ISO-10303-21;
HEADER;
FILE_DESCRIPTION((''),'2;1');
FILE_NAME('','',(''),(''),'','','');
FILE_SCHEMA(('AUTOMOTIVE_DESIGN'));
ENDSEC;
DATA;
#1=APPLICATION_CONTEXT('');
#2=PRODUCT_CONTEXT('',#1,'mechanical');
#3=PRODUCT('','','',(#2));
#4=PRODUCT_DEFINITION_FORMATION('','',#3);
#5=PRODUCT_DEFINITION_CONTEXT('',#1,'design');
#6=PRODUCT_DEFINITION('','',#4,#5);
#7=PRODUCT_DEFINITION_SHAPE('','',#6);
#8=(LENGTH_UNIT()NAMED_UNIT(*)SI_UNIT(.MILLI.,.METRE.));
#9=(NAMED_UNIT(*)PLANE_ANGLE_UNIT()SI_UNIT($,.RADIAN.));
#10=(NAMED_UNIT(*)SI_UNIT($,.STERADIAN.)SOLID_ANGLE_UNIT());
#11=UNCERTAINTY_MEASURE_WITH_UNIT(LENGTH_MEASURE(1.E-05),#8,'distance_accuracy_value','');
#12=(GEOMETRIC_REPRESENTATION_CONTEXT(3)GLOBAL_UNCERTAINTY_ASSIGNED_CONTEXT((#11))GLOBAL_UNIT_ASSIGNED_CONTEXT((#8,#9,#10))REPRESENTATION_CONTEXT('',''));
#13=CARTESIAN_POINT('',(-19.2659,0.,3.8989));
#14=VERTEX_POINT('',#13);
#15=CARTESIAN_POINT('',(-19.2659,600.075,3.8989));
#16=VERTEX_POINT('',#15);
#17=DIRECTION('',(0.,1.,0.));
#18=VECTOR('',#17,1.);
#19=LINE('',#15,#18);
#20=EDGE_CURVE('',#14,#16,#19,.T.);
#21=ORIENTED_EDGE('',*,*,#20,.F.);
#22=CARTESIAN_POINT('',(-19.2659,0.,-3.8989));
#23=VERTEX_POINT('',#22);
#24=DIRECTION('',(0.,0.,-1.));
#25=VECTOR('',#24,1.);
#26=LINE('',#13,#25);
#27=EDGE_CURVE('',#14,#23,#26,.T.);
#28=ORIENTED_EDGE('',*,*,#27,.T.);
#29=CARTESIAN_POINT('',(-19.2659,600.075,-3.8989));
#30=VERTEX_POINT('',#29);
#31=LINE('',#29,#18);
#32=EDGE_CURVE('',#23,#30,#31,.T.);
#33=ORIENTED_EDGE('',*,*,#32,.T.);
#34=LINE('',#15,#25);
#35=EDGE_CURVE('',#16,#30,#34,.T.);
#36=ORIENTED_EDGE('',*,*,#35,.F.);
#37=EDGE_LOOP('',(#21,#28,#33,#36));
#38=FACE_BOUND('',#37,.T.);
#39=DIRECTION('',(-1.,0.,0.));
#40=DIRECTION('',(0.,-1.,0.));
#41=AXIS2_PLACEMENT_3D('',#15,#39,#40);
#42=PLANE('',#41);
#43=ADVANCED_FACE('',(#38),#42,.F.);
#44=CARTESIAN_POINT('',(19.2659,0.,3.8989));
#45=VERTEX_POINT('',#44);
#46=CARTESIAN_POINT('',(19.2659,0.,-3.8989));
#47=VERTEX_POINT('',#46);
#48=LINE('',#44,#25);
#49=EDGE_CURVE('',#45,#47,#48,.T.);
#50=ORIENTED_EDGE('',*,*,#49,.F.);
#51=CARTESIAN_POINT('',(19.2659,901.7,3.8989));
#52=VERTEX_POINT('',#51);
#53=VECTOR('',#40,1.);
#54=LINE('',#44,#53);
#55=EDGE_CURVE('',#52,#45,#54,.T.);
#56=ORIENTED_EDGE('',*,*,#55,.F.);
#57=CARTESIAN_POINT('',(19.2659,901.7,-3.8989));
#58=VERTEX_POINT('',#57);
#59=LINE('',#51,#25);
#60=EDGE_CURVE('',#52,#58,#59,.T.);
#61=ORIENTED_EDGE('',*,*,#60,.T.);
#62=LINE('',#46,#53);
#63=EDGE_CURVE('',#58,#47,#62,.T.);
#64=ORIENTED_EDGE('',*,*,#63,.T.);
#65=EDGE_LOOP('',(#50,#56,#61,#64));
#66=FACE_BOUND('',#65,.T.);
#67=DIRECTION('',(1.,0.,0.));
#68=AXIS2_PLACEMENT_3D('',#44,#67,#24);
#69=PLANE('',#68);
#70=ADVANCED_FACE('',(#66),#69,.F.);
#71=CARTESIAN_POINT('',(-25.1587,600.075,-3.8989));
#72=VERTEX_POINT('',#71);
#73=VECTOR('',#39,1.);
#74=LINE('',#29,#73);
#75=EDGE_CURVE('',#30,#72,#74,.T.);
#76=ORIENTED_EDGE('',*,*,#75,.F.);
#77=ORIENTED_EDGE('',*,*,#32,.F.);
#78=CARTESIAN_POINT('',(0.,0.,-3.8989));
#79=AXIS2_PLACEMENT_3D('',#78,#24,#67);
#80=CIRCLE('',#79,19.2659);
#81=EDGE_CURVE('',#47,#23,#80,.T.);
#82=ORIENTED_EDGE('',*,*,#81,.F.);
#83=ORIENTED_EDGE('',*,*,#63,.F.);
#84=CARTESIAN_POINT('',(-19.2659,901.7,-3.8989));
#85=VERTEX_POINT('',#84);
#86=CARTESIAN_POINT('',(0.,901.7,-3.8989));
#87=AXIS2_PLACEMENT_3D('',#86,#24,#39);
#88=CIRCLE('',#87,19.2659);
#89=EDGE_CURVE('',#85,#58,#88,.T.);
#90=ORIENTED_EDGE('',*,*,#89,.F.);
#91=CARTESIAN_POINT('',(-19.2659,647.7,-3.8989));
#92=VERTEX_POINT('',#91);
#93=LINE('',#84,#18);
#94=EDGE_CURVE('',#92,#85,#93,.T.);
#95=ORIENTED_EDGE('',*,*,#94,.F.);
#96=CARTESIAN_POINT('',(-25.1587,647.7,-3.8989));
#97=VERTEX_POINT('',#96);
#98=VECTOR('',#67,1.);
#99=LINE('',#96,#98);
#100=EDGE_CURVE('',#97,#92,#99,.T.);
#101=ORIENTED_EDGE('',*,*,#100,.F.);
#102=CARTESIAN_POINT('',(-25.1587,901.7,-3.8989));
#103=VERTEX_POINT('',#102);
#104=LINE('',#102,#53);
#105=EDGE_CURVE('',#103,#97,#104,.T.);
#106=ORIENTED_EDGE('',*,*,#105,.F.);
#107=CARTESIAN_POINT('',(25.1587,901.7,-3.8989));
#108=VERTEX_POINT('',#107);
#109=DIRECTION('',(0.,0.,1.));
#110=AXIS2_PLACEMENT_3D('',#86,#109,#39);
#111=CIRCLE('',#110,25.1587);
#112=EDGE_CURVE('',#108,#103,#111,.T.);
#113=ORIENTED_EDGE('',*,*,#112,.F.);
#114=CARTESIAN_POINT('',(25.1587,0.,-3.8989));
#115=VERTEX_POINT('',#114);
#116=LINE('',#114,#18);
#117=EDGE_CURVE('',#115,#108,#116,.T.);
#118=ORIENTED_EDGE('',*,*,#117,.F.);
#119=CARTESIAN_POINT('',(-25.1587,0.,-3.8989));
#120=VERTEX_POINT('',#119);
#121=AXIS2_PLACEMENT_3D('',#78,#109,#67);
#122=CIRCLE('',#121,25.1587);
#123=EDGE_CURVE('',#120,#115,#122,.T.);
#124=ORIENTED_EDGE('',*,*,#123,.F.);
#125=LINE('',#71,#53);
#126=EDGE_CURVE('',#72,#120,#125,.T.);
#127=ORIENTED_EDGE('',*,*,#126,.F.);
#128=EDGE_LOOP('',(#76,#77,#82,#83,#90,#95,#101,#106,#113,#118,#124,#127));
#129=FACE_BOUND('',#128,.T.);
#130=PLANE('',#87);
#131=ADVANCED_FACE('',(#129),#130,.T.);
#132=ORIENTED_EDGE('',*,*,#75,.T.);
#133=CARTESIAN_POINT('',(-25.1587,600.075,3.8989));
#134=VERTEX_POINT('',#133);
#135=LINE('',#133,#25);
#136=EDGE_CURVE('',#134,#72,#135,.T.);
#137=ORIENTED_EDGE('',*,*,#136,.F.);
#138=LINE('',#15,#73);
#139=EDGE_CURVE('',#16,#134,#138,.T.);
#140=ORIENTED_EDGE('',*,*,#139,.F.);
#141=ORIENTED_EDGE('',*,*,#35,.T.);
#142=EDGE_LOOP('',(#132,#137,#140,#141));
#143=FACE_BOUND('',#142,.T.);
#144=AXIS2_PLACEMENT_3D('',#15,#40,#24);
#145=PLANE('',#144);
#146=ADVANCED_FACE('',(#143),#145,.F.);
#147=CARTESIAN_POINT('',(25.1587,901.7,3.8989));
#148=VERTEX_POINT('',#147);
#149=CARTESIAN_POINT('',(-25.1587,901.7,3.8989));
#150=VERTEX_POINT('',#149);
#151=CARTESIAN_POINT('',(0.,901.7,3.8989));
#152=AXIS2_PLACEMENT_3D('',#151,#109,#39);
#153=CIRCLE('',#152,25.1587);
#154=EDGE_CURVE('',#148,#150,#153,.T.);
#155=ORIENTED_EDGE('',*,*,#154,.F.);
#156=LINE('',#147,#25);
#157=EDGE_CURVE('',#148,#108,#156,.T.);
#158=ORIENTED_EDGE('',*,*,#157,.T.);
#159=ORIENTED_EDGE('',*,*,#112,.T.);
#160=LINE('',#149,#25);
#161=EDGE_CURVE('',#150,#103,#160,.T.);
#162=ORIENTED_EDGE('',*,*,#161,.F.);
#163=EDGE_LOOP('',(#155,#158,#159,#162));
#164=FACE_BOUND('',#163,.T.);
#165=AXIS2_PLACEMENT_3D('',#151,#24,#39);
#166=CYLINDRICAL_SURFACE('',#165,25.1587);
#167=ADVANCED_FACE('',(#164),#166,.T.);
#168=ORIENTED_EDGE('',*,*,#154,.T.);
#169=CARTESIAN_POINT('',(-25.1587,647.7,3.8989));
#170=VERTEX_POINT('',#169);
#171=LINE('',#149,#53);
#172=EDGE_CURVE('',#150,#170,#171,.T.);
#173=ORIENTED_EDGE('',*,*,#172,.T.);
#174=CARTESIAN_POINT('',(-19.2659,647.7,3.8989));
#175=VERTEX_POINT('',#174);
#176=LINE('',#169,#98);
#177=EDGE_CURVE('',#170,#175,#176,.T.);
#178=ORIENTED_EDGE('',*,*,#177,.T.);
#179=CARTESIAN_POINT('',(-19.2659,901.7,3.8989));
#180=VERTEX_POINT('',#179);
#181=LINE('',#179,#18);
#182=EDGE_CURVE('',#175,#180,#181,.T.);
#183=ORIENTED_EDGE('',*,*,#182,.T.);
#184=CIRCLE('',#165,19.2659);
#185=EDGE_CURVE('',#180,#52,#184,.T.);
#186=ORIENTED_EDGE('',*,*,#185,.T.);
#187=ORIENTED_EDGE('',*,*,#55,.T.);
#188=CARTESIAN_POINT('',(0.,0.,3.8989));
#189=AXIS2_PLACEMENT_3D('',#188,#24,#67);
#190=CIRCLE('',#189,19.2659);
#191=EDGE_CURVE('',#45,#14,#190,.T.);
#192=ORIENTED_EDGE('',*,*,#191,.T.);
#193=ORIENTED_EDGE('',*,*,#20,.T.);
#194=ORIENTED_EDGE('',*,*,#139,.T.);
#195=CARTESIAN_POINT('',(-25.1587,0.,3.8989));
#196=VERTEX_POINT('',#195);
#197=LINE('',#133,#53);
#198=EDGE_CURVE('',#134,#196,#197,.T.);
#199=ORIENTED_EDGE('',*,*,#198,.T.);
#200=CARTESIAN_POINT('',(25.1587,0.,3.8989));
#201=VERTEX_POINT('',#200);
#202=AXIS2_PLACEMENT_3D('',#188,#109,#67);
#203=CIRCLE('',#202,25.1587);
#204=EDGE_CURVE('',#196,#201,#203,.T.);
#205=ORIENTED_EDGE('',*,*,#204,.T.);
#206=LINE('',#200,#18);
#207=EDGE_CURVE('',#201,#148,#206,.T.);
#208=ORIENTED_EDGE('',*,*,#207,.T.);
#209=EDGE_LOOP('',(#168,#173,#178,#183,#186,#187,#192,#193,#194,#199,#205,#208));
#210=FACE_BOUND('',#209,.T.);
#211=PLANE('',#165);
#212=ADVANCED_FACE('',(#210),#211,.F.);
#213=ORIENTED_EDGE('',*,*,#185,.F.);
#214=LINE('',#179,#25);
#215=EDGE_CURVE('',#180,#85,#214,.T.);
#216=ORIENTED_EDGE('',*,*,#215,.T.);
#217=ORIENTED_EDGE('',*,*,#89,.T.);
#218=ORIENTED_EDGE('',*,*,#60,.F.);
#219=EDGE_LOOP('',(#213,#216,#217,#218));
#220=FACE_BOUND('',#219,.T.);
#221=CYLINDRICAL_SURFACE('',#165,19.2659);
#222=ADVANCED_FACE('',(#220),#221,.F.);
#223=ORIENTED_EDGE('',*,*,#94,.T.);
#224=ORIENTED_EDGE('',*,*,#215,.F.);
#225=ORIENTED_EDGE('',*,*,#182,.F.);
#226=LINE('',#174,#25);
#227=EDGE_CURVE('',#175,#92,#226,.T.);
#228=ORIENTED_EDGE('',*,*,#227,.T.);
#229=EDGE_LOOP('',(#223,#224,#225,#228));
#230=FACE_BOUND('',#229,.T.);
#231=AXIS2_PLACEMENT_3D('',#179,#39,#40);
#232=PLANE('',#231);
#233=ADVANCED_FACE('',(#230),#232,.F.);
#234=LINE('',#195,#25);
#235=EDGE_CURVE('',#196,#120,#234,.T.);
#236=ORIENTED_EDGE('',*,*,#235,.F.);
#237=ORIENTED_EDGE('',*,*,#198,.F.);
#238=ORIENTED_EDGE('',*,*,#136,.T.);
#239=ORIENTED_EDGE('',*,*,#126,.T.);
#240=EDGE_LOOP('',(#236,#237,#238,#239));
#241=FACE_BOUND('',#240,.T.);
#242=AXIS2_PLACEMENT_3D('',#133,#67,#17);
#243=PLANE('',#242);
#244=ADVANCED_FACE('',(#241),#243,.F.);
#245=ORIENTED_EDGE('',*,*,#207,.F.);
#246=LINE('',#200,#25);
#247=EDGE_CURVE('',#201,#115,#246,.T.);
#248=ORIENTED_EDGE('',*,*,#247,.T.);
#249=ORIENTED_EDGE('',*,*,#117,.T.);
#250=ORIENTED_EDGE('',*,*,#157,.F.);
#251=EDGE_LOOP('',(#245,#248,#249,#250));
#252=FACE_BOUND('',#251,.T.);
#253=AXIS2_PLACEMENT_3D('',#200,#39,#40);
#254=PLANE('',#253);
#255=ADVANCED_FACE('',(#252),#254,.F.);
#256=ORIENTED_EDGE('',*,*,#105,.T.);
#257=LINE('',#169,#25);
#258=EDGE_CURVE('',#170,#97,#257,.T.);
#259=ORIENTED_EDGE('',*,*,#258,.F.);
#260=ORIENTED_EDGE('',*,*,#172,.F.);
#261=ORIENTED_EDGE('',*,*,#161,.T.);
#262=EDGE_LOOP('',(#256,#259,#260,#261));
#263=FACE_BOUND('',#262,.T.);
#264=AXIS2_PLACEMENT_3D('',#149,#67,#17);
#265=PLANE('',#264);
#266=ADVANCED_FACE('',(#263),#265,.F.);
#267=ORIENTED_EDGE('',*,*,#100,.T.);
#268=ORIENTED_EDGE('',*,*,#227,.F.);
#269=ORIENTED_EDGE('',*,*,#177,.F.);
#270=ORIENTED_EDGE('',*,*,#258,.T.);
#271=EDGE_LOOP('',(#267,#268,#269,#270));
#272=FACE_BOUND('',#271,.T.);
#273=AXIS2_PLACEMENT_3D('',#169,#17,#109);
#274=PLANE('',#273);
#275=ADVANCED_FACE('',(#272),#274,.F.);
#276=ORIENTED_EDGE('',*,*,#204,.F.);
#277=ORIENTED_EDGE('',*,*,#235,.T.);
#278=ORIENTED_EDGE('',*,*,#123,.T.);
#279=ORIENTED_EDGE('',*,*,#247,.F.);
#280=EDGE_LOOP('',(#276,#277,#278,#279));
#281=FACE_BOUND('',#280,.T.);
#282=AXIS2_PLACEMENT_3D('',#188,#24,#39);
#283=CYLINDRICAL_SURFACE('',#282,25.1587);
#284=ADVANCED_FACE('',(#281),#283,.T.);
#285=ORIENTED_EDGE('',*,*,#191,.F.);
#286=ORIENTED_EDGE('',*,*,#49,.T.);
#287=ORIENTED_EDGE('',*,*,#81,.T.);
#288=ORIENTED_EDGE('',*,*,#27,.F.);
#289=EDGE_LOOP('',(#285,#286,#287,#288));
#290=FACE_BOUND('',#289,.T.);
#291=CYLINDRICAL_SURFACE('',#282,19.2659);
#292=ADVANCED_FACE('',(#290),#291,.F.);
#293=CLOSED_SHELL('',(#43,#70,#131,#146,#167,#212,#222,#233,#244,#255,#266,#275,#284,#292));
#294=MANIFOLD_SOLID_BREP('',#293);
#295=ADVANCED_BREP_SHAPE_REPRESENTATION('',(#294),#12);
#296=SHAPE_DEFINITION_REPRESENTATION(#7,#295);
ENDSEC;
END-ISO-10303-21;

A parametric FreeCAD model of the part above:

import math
import FreeCAD as App
import Part
import Sketcher
Q = App.Units.Quantity

doc = App.newDocument("Part")
body = doc.addObject("PartDesign::Body", "Body")

sketch1 = body.newObject("Sketcher::SketchObject", "Sketch")
sketch1.AttachmentSupport = (doc.getObject("XY_Plane"), [""])
sketch1.MapMode = "FlatFace"
sketch1.addGeometry([
    Part.LineSegment(App.Vector(-25, 902, 0), App.Vector(-25, 648, 0)),
    Part.LineSegment(App.Vector(-25, 648, 0), App.Vector(-19, 648, 0)),
    Part.LineSegment(App.Vector(-19, 648, 0), App.Vector(-19, 902, 0)),
    Part.ArcOfCircle(Part.Circle(App.Vector(0, 902, 0), App.Vector(0, 0, 1), 19), math.radians(0), math.radians(180)),
    Part.LineSegment(App.Vector(19, 902, 0), App.Vector(19, 0, 0)),
    Part.ArcOfCircle(Part.Circle(App.Vector(0, 0, 0), App.Vector(0, 0, 1), 19), math.radians(180), math.radians(360)),
    Part.LineSegment(App.Vector(-19, 0, 0), App.Vector(-19, 600, 0)),
    Part.LineSegment(App.Vector(-19, 600, 0), App.Vector(-25, 600, 0)),
    Part.LineSegment(App.Vector(-25, 600, 0), App.Vector(-25, 0, 0)),
    Part.ArcOfCircle(Part.Circle(App.Vector(0, 0, 0), App.Vector(0, 0, 1), 25), math.radians(180), math.radians(360)),
    Part.LineSegment(App.Vector(25, 0, 0), App.Vector(25, 902, 0)),
    Part.ArcOfCircle(Part.Circle(App.Vector(0, 902, 0), App.Vector(0, 0, 1), 25), math.radians(0), math.radians(180)),
], False)
sketch1.addConstraint([
    Sketcher.Constraint("Coincident", 0, 2, 1, 1),
    Sketcher.Constraint("Coincident", 1, 2, 2, 1),
    Sketcher.Constraint("Tangent", 2, 2, 3, 2),
    Sketcher.Constraint("Tangent", 3, 1, 4, 1),
    Sketcher.Constraint("Tangent", 4, 2, 5, 2),
    Sketcher.Constraint("Tangent", 5, 1, 6, 1),
    Sketcher.Constraint("Coincident", 6, 2, 7, 1),
    Sketcher.Constraint("Coincident", 7, 2, 8, 1),
    Sketcher.Constraint("Tangent", 8, 2, 9, 1),
    Sketcher.Constraint("Tangent", 9, 2, 10, 1),
    Sketcher.Constraint("Tangent", 10, 2, 11, 1),
    Sketcher.Constraint("Tangent", 11, 2, 0, 1),
    Sketcher.Constraint("Vertical", 0),
    Sketcher.Constraint("Horizontal", 1),
    Sketcher.Constraint("Vertical", 2),
    Sketcher.Constraint("Vertical", 4),
    Sketcher.Constraint("Vertical", 6),
    Sketcher.Constraint("Horizontal", 7),
    Sketcher.Constraint("Vertical", 8),
    Sketcher.Constraint("Vertical", 10),
    Sketcher.Constraint("Coincident", 5, 3, -1, 1),
    Sketcher.Constraint("Coincident", 9, 3, -1, 1),
    Sketcher.Constraint("Coincident", 11, 3, 3, 3),
    Sketcher.Constraint("Equal", 3, 5),
    Sketcher.Constraint("DistanceY", 0, 2, 0, 1, Q("10 in")),
    Sketcher.Constraint("DistanceY", 4, 2, 4, 1, Q("35.5 in")),
    Sketcher.Constraint("Radius", 3, Q("0.7585 in")),
    Sketcher.Constraint("Radius", 9, Q("0.9905 in")),
    Sketcher.Constraint("DistanceY", 6, 1, 6, 2, Q("23.625 in")),
])
pad1 = body.newObject("PartDesign::Pad", "Pad")
pad1.Profile = sketch1
pad1.Length = Q("0.307 in")
pad1.Midplane = True

doc.recompute()
